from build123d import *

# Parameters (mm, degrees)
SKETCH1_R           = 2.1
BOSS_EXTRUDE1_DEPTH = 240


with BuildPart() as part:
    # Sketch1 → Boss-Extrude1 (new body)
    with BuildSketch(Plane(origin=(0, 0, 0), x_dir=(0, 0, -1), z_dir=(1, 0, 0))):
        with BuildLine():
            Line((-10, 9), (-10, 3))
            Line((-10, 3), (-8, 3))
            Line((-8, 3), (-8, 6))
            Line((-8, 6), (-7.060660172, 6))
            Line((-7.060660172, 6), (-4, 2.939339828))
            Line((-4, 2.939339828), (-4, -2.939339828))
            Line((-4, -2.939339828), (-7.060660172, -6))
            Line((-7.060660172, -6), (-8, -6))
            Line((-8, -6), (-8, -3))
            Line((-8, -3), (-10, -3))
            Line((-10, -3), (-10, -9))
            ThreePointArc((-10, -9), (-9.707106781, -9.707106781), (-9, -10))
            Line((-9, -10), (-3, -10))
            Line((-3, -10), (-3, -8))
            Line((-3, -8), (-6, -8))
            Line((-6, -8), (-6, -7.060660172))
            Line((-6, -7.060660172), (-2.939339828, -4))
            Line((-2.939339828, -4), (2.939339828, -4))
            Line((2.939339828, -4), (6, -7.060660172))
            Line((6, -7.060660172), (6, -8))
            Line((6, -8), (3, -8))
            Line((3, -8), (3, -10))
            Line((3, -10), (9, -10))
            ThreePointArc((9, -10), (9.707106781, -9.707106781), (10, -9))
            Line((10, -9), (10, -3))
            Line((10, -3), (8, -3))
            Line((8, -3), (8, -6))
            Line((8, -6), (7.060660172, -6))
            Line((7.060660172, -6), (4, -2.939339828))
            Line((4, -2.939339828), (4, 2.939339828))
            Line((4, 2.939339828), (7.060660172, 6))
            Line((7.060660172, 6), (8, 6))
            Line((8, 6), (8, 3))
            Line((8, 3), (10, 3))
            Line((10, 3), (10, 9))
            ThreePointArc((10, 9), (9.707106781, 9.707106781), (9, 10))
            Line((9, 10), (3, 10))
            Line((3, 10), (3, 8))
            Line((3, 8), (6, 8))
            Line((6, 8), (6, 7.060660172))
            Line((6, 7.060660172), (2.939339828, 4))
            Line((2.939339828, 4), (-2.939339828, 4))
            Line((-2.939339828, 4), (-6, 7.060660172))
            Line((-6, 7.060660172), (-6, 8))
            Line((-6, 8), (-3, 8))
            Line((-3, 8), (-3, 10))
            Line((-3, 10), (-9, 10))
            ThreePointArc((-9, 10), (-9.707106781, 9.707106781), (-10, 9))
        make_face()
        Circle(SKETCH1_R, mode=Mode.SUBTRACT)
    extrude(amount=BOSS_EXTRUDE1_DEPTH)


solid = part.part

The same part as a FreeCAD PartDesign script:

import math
import FreeCAD as App
import Part
import Sketcher

V = App.Vector
Q = App.Units.Quantity

doc = App.newDocument("Part")
params = doc.addObject("Spreadsheet::Sheet", "Params")
for row, (alias, value) in enumerate([
    ("sketch1_radius", "1 mm"),
    ("sketch1_diameter", "4.2 mm"),
    ("sketch1_width", "6 mm"),
    ("sketch1_width2", "3 mm"),
    ("sketch1_width3", "2 mm"),
    ("pad1_length", "240 mm"),
], start=1):
    params.set(f"A{row}", alias)
    params.set(f"B{row}", "=" + value)
    params.setAlias(f"B{row}", alias)

body = doc.addObject("PartDesign::Body", "Body")

# Sketch on YZ plane
sketch1 = body.newObject("Sketcher::SketchObject", "Sketch")
sketch1.AttachmentSupport = (doc.getObject("YZ_Plane"), [""])
sketch1.MapMode = "FlatFace"
sketch1.addGeometry(Part.LineSegment(V(9, 10, 0), V(3, 10, 0)), False)
sketch1.addGeometry(Part.LineSegment(V(3, 10, 0), V(3, 8, 0)), False)
sketch1.addGeometry(Part.LineSegment(V(3, 8, 0), V(6, 8, 0)), False)
sketch1.addGeometry(Part.LineSegment(V(6, 8, 0), V(6, 7.1, 0)), False)
sketch1.addGeometry(Part.LineSegment(V(6, 7.1, 0), V(2.9, 4, 0)), False)
sketch1.addGeometry(Part.LineSegment(V(2.9, 4, 0), V(-2.9, 4, 0)), False)
sketch1.addGeometry(Part.LineSegment(V(-2.9, 4, 0), V(-6, 7.1, 0)), False)
sketch1.addGeometry(Part.LineSegment(V(-6, 7.1, 0), V(-6, 8, 0)), False)
sketch1.addGeometry(Part.LineSegment(V(-6, 8, 0), V(-3, 8, 0)), False)
sketch1.addGeometry(Part.LineSegment(V(-3, 8, 0), V(-3, 10, 0)), False)
sketch1.addGeometry(Part.LineSegment(V(-3, 10, 0), V(-9, 10, 0)), False)
sketch1.addGeometry(Part.ArcOfCircle(Part.Circle(V(-9, 9, 0), V(0, 0, 1), 1), math.radians(90), math.radians(180)), False)
sketch1.addGeometry(Part.LineSegment(V(-10, 9, 0), V(-10, 3, 0)), False)
sketch1.addGeometry(Part.LineSegment(V(-10, 3, 0), V(-8, 3, 0)), False)
sketch1.addGeometry(Part.LineSegment(V(-8, 3, 0), V(-8, 6, 0)), False)
sketch1.addGeometry(Part.LineSegment(V(-8, 6, 0), V(-7.1, 6, 0)), False)
sketch1.addGeometry(Part.LineSegment(V(-7.1, 6, 0), V(-4, 2.9, 0)), False)
sketch1.addGeometry(Part.LineSegment(V(-4, 2.9, 0), V(-4, -2.9, 0)), False)
sketch1.addGeometry(Part.LineSegment(V(-4, -2.9, 0), V(-7.1, -6, 0)), False)
sketch1.addGeometry(Part.LineSegment(V(-7.1, -6, 0), V(-8, -6, 0)), False)
sketch1.addGeometry(Part.LineSegment(V(-8, -6, 0), V(-8, -3, 0)), False)
sketch1.addGeometry(Part.LineSegment(V(-8, -3, 0), V(-10, -3, 0)), False)
sketch1.addGeometry(Part.LineSegment(V(-10, -3, 0), V(-10, -9, 0)), False)
sketch1.addGeometry(Part.ArcOfCircle(Part.Circle(V(-9, -9, 0), V(0, 0, 1), 1), math.radians(-180), math.radians(-90)), False)
sketch1.addGeometry(Part.LineSegment(V(-9, -10, 0), V(-3, -10, 0)), False)
sketch1.addGeometry(Part.LineSegment(V(-3, -10, 0), V(-3, -8, 0)), False)
sketch1.addGeometry(Part.LineSegment(V(-3, -8, 0), V(-6, -8, 0)), False)
sketch1.addGeometry(Part.LineSegment(V(-6, -8, 0), V(-6, -7.1, 0)), False)
sketch1.addGeometry(Part.LineSegment(V(-6, -7.1, 0), V(-2.9, -4, 0)), False)
sketch1.addGeometry(Part.LineSegment(V(-2.9, -4, 0), V(2.9, -4, 0)), False)
sketch1.addGeometry(Part.LineSegment(V(2.9, -4, 0), V(6, -7.1, 0)), False)
sketch1.addGeometry(Part.LineSegment(V(6, -7.1, 0), V(6, -8, 0)), False)
sketch1.addGeometry(Part.LineSegment(V(6, -8, 0), V(3, -8, 0)), False)
sketch1.addGeometry(Part.LineSegment(V(3, -8, 0), V(3, -10, 0)), False)
sketch1.addGeometry(Part.LineSegment(V(3, -10, 0), V(9, -10, 0)), False)
sketch1.addGeometry(Part.ArcOfCircle(Part.Circle(V(9, -9, 0), V(0, 0, 1), 1), math.radians(-90), math.radians(0)), False)
sketch1.addGeometry(Part.LineSegment(V(10, -9, 0), V(10, -3, 0)), False)
sketch1.addGeometry(Part.LineSegment(V(10, -3, 0), V(8, -3, 0)), False)
sketch1.addGeometry(Part.LineSegment(V(8, -3, 0), V(8, -6, 0)), False)
sketch1.addGeometry(Part.LineSegment(V(8, -6, 0), V(7.1, -6, 0)), False)
sketch1.addGeometry(Part.LineSegment(V(7.1, -6, 0), V(4, -2.9, 0)), False)
sketch1.addGeometry(Part.LineSegment(V(4, -2.9, 0), V(4, 2.9, 0)), False)
sketch1.addGeometry(Part.LineSegment(V(4, 2.9, 0), V(7.1, 6, 0)), False)
sketch1.addGeometry(Part.LineSegment(V(7.1, 6, 0), V(8, 6, 0)), False)
sketch1.addGeometry(Part.LineSegment(V(8, 6, 0), V(8, 3, 0)), False)
sketch1.addGeometry(Part.LineSegment(V(8, 3, 0), V(10, 3, 0)), False)
sketch1.addGeometry(Part.LineSegment(V(10, 3, 0), V(10, 9, 0)), False)
sketch1.addGeometry(Part.ArcOfCircle(Part.Circle(V(9, 9, 0), V(0, 0, 1), 1), math.radians(0), math.radians(90)), False)
sketch1.addGeometry(Part.Circle(V(0, 0, 0), V(0, 0, 1), 2.1), False)
sketch1.addConstraint(Sketcher.Constraint("Coincident", 0, 2, 1, 1))
sketch1.addConstraint(Sketcher.Constraint("Coincident", 1, 2, 2, 1))
sketch1.addConstraint(Sketcher.Constraint("Coincident", 2, 2, 3, 1))
sketch1.addConstraint(Sketcher.Constraint("Coincident", 3, 2, 4, 1))
sketch1.addConstraint(Sketcher.Constraint("Coincident", 4, 2, 5, 1))
sketch1.addConstraint(Sketcher.Constraint("Coincident", 5, 2, 6, 1))
sketch1.addConstraint(Sketcher.Constraint("Coincident", 6, 2, 7, 1))
sketch1.addConstraint(Sketcher.Constraint("Coincident", 7, 2, 8, 1))
sketch1.addConstraint(Sketcher.Constraint("Coincident", 8, 2, 9, 1))
sketch1.addConstraint(Sketcher.Constraint("Coincident", 9, 2, 10, 1))
sketch1.addConstraint(Sketcher.Constraint("Tangent", 10, 2, 11, 1))
sketch1.addConstraint(Sketcher.Constraint("Tangent", 11, 2, 12, 1))
sketch1.addConstraint(Sketcher.Constraint("Coincident", 12, 2, 13, 1))
sketch1.addConstraint(Sketcher.Constraint("Coincident", 13, 2, 14, 1))
sketch1.addConstraint(Sketcher.Constraint("Coincident", 14, 2, 15, 1))
sketch1.addConstraint(Sketcher.Constraint("Coincident", 15, 2, 16, 1))
sketch1.addConstraint(Sketcher.Constraint("Coincident", 16, 2, 17, 1))
sketch1.addConstraint(Sketcher.Constraint("Coincident", 17, 2, 18, 1))
sketch1.addConstraint(Sketcher.Constraint("Coincident", 18, 2, 19, 1))
sketch1.addConstraint(Sketcher.Constraint("Coincident", 19, 2, 20, 1))
sketch1.addConstraint(Sketcher.Constraint("Coincident", 20, 2, 21, 1))
sketch1.addConstraint(Sketcher.Constraint("Coincident", 21, 2, 22, 1))
sketch1.addConstraint(Sketcher.Constraint("Tangent", 22, 2, 23, 1))
sketch1.addConstraint(Sketcher.Constraint("Tangent", 23, 2, 24, 1))
sketch1.addConstraint(Sketcher.Constraint("Coincident", 24, 2, 25, 1))
sketch1.addConstraint(Sketcher.Constraint("Coincident", 25, 2, 26, 1))
sketch1.addConstraint(Sketcher.Constraint("Coincident", 26, 2, 27, 1))
sketch1.addConstraint(Sketcher.Constraint("Coincident", 27, 2, 28, 1))
sketch1.addConstraint(Sketcher.Constraint("Coincident", 28, 2, 29, 1))
sketch1.addConstraint(Sketcher.Constraint("Coincident", 29, 2, 30, 1))
sketch1.addConstraint(Sketcher.Constraint("Coincident", 30, 2, 31, 1))
sketch1.addConstraint(Sketcher.Constraint("Coincident", 31, 2, 32, 1))
sketch1.addConstraint(Sketcher.Constraint("Coincident", 32, 2, 33, 1))
sketch1.addConstraint(Sketcher.Constraint("Coincident", 33, 2, 34, 1))
sketch1.addConstraint(Sketcher.Constraint("Tangent", 34, 2, 35, 1))
sketch1.addConstraint(Sketcher.Constraint("Tangent", 35, 2, 36, 1))
sketch1.addConstraint(Sketcher.Constraint("Coincident", 36, 2, 37, 1))
sketch1.addConstraint(Sketcher.Constraint("Coincident", 37, 2, 38, 1))
sketch1.addConstraint(Sketcher.Constraint("Coincident", 38, 2, 39, 1))
sketch1.addConstraint(Sketcher.Constraint("Coincident", 39, 2, 40, 1))
sketch1.addConstraint(Sketcher.Constraint("Coincident", 40, 2, 41, 1))
sketch1.addConstraint(Sketcher.Constraint("Coincident", 41, 2, 42, 1))
sketch1.addConstraint(Sketcher.Constraint("Coincident", 42, 2, 43, 1))
sketch1.addConstraint(Sketcher.Constraint("Coincident", 43, 2, 44, 1))
sketch1.addConstraint(Sketcher.Constraint("Coincident", 44, 2, 45, 1))
sketch1.addConstraint(Sketcher.Constraint("Coincident", 45, 2, 46, 1))
sketch1.addConstraint(Sketcher.Constraint("Tangent", 46, 2, 47, 1))
sketch1.addConstraint(Sketcher.Constraint("Tangent", 47, 2, 0, 1))
sketch1.addConstraint(Sketcher.Constraint("Horizontal", 0))
sketch1.addConstraint(Sketcher.Constraint("Vertical", 1))
sketch1.addConstraint(Sketcher.Constraint("Horizontal", 2))
sketch1.addConstraint(Sketcher.Constraint("Vertical", 3))
sketch1.addConstraint(Sketcher.Constraint("Horizontal", 5))
sketch1.addConstraint(Sketcher.Constraint("Vertical", 7))
sketch1.addConstraint(Sketcher.Constraint("Horizontal", 8))
sketch1.addConstraint(Sketcher.Constraint("Vertical", 9))
sketch1.addConstraint(Sketcher.Constraint("Horizontal", 10))
sketch1.addConstraint(Sketcher.Constraint("Vertical", 12))
sketch1.addConstraint(Sketcher.Constraint("Horizontal", 13))
sketch1.addConstraint(Sketcher.Constraint("Vertical", 14))
sketch1.addConstraint(Sketcher.Constraint("Horizontal", 15))
sketch1.addConstraint(Sketcher.Constraint("Vertical", 17))
sketch1.addConstraint(Sketcher.Constraint("Horizontal", 19))
sketch1.addConstraint(Sketcher.Constraint("Vertical", 20))
sketch1.addConstraint(Sketcher.Constraint("Horizontal", 21))
sketch1.addConstraint(Sketcher.Constraint("Vertical", 22))
sketch1.addConstraint(Sketcher.Constraint("Horizontal", 24))
sketch1.addConstraint(Sketcher.Constraint("Vertical", 25))
sketch1.addConstraint(Sketcher.Constraint("Horizontal", 26))
sketch1.addConstraint(Sketcher.Constraint("Vertical", 27))
sketch1.addConstraint(Sketcher.Constraint("Horizontal", 29))
sketch1.addConstraint(Sketcher.Constraint("Vertical", 31))
sketch1.addConstraint(Sketcher.Constraint("Horizontal", 32))
sketch1.addConstraint(Sketcher.Constraint("Vertical", 33))
sketch1.addConstraint(Sketcher.Constraint("Horizontal", 34))
sketch1.addConstraint(Sketcher.Constraint("Vertical", 36))
sketch1.addConstraint(Sketcher.Constraint("Horizontal", 37))
sketch1.addConstraint(Sketcher.Constraint("Vertical", 38))
sketch1.addConstraint(Sketcher.Constraint("Horizontal", 39))
sketch1.addConstraint(Sketcher.Constraint("Vertical", 41))
sketch1.addConstraint(Sketcher.Constraint("Horizontal", 43))
sketch1.addConstraint(Sketcher.Constraint("Vertical", 44))
sketch1.addConstraint(Sketcher.Constraint("Horizontal", 45))
sketch1.addConstraint(Sketcher.Constraint("Vertical", 46))
sketch1.addConstraint(Sketcher.Constraint("Coincident", 48, 3, -1, 1))
sketch1.addConstraint(Sketcher.Constraint("Equal", 11, 23))
sketch1.addConstraint(Sketcher.Constraint("Equal", 23, 35))
sketch1.addConstraint(Sketcher.Constraint("Equal", 35, 47))
sketch1.addConstraint(Sketcher.Constraint("Symmetric", 11, 3, 35, 3, -1, 1))
sketch1.addConstraint(Sketcher.Constraint("Symmetric", 23, 3, 47, 3, -1, 1))
sketch1.addConstraint(Sketcher.Constraint("Symmetric", 1, 2, 25, 2, -1, 1))
sketch1.addConstraint(Sketcher.Constraint("Symmetric", 3, 2, 27, 2, -1, 1))
sketch1.addConstraint(Sketcher.Constraint("Symmetric", 4, 2, 28, 2, -1, 1))
sketch1.addConstraint(Sketcher.Constraint("Symmetric", 6, 2, 30, 2, -1, 1))
sketch1.addConstraint(Sketcher.Constraint("Symmetric", 8, 2, 32, 2, -1, 1))
sketch1.addConstraint(Sketcher.Constraint("Symmetric", 13, 2, 37, 2, -1, 1))
sketch1.addConstraint(Sketcher.Constraint("Symmetric", 15, 2, 39, 2, -1, 1))
sketch1.addConstraint(Sketcher.Constraint("Symmetric", 16, 2, 40, 2, -1, 1))
sketch1.addConstraint(Sketcher.Constraint("Symmetric", 18, 2, 42, 2, -1, 1))
sketch1.addConstraint(Sketcher.Constraint("Symmetric", 20, 2, 44, 2, -1, 1))
sketch1.addConstraint(Sketcher.Constraint("Symmetric", 23, 3, 35, 3, -2))
sketch1.addConstraint(Sketcher.Constraint("Symmetric", 3, 2, 6, 2, -2))
sketch1.addConstraint(Sketcher.Constraint("Symmetric", 1, 2, 8, 2, -2))
sketch1.addConstraint(Sketcher.Constraint("Symmetric", 20, 2, 37, 2, -2))
sketch1.addConstraint(Sketcher.Constraint("Symmetric", 18, 2, 39, 2, -2))
sketch1.addConstraint(Sketcher.Constraint("Perpendicular", 4, 6))
sketch1.addConstraint(Sketcher.Constraint("Parallel", 6, 16))
sketch1.addConstraint(Sketcher.Constraint("Perpendicular", 16, 18))
sketch1.addConstraint(Sketcher.Constraint("Perpendicular", 28, 30))
sketch1.addConstraint(Sketcher.Constraint("Perpendicular", 40, 42))
sketch1.addConstraint(Sketcher.Constraint("Horizontal", 17, 2, 40, 2))
sketch1.addConstraint(Sketcher.Constraint("Equal", 45, 1))
sketch1.addConstraint(Sketcher.Constraint("Equal", 43, 3))
sketch1.addConstraint(Sketcher.Constraint("Equal", 34, 12))
sketch1.addConstraint(Sketcher.Constraint("Equal", 32, 14))
sketch1.addConstraint(Sketcher.Constraint("Equal", 29, 17))
sketch1.addConstraint(Sketcher.Constraint("Equal", 6, 16))
sketch1.addConstraint(Sketcher.Constraint("Radius", 11, Q("1 mm")))
sketch1.addConstraint(Sketcher.Constraint("Diameter", 48, Q("4.2 mm")))
sketch1.addConstraint(Sketcher.Constraint("DistanceX", 0, 2, 0, 1, Q("6 mm")))
sketch1.addConstraint(Sketcher.Constraint("DistanceX", 2, 1, 2, 2, Q("3 mm")))
sketch1.addConstraint(Sketcher.Constraint("DistanceX", 13, 1, 13, 2, Q("2 mm")))
sketch1.addConstraint(Sketcher.Constraint("DistanceX", 11, 3, -1, 1, Q("9 mm")))
sketch1.addConstraint(Sketcher.Constraint("DistanceY", -1, 1, 4, 2, Q("4 mm")))
sketch1.addConstraint(Sketcher.Constraint("DistanceX", 5, 2, 5, 1, Q("5.87868 mm")))
sketch1.setExpression("Constraints[117]", "Params.sketch1_radius")
sketch1.setExpression("Constraints[118]", "Params.sketch1_diameter")
sketch1.setExpression("Constraints[119]", "Params.sketch1_width")
sketch1.setExpression("Constraints[120]", "Params.sketch1_width2")
sketch1.setExpression("Constraints[121]", "Params.sketch1_width3")
pad1 = body.newObject("PartDesign::Pad", "Pad")
pad1.Profile = sketch1
pad1.setExpression("Length", "Params.pad1_length")

doc.recompute()
